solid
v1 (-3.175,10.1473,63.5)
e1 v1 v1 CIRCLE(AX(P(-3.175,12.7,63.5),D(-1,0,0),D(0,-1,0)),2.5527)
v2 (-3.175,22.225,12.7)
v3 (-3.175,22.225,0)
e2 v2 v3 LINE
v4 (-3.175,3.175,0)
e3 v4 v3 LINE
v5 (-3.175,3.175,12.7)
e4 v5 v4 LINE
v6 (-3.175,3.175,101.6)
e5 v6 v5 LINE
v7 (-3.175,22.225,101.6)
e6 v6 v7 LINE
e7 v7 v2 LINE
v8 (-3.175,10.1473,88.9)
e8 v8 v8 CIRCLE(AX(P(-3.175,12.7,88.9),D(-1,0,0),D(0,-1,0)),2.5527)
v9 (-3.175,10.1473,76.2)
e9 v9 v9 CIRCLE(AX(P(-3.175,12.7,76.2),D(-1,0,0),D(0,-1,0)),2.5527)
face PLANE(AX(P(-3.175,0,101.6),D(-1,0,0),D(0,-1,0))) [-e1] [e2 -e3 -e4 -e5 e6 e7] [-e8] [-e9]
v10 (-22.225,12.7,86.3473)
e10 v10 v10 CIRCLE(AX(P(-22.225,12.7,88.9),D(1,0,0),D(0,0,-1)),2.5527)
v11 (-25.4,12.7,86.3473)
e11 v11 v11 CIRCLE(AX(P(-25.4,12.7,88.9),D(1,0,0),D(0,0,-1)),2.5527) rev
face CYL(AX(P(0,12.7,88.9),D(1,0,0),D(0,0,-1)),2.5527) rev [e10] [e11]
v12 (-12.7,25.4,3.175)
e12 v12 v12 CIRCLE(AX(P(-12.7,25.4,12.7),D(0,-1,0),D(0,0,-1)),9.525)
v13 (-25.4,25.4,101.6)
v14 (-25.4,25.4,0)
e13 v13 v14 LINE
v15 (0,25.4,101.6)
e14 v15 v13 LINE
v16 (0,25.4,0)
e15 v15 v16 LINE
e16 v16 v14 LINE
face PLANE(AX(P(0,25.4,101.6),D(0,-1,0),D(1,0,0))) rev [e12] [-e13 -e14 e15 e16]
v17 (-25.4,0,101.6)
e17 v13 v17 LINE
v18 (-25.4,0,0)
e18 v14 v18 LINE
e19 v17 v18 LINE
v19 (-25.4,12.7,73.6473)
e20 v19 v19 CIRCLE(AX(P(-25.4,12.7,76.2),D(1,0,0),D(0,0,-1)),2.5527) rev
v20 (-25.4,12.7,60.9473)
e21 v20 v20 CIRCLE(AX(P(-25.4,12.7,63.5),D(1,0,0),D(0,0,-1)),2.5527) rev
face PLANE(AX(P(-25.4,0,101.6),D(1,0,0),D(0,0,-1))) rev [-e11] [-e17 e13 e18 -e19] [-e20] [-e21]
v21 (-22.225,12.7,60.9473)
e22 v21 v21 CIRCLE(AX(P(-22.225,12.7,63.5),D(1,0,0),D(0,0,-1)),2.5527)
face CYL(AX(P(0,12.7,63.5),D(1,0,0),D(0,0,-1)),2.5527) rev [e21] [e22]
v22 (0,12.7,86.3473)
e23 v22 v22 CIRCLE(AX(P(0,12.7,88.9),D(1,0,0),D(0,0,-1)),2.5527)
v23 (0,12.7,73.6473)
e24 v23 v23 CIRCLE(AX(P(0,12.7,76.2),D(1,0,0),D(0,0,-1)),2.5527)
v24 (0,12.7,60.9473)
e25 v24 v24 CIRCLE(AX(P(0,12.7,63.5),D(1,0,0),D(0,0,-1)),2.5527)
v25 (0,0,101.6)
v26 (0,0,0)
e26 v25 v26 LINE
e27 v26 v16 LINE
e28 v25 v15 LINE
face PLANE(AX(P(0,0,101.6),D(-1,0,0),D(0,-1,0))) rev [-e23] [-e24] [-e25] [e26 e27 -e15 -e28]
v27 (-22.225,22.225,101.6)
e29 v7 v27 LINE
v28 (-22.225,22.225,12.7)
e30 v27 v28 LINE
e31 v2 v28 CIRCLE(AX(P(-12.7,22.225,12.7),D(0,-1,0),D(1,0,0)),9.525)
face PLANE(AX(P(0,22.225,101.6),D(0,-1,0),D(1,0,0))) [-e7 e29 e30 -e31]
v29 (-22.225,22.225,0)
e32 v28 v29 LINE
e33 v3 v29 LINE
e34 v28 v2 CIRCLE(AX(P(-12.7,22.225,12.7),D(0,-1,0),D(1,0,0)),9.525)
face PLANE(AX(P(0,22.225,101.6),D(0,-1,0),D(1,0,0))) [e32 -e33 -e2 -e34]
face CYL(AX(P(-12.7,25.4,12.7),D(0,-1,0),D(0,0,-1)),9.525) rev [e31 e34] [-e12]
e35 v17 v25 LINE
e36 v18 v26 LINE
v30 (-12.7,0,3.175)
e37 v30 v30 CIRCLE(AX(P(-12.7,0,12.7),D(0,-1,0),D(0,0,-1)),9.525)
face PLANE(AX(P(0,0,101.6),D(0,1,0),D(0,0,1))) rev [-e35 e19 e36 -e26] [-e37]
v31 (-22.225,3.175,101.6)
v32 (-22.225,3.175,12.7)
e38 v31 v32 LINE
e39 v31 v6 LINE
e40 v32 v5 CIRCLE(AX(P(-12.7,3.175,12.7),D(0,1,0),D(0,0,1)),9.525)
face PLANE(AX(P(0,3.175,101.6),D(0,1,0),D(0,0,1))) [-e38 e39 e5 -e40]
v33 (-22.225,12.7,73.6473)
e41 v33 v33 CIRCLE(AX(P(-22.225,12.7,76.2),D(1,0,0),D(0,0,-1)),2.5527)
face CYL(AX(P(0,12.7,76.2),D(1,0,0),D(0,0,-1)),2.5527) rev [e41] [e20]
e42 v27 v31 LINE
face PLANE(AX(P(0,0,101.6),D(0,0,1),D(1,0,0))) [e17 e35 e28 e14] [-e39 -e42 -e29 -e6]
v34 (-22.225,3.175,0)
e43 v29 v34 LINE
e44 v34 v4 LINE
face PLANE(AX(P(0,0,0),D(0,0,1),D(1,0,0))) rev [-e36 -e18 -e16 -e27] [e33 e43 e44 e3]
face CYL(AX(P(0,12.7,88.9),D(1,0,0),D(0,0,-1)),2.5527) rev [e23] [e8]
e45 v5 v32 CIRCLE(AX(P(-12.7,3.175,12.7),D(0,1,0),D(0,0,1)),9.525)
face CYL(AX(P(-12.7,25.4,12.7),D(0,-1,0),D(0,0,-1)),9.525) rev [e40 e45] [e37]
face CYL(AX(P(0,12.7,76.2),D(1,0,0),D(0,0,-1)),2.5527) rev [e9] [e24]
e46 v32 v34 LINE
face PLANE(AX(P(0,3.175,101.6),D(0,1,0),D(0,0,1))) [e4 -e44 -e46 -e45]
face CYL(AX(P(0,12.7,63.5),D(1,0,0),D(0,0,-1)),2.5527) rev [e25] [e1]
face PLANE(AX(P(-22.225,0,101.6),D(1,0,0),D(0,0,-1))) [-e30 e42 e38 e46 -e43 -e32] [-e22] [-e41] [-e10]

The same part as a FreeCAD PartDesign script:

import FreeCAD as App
import Part
import Sketcher

V = App.Vector
Q = App.Units.Quantity


def add_polygon(sketch, points):
    """Adds a closed chain of lines whose ends are joined by coincident constraints."""
    first, n = sketch.GeometryCount, len(points)
    for a, b in zip(points, points[1:] + points[:1]):
        sketch.addGeometry(Part.LineSegment(App.Vector(*a, 0), App.Vector(*b, 0)), False)
    for i in range(n):
        sketch.addConstraint(Sketcher.Constraint("Coincident", first + i, 2, first + (i + 1) % n, 1))

doc = App.newDocument("Part")
body = doc.addObject("PartDesign::Body", "Body")

# Sketch on XY plane
sketch1 = doc.addObject("Sketcher::SketchObject", "Sketch")
body.addObject(sketch1)
sketch1.AttachmentSupport = (doc.XY_Plane, [""])
sketch1.MapMode = "FlatFace"
add_polygon(sketch1, [(-25, 25), (-25, 0), (0, 0), (0, 25)])  # lines 0-3
add_polygon(sketch1, [(-3, 3), (-22, 3), (-22, 22), (-3, 22)])  # lines 4-7
sketch1.addConstraint(Sketcher.Constraint("Vertical", 0))
sketch1.addConstraint(Sketcher.Constraint("Horizontal", 1))
sketch1.addConstraint(Sketcher.Constraint("Vertical", 2))
sketch1.addConstraint(Sketcher.Constraint("Horizontal", 3))
sketch1.addConstraint(Sketcher.Constraint("Horizontal", 4))
sketch1.addConstraint(Sketcher.Constraint("Vertical", 5))
sketch1.addConstraint(Sketcher.Constraint("Horizontal", 6))
sketch1.addConstraint(Sketcher.Constraint("Vertical", 7))
sketch1.addConstraint(Sketcher.Constraint("Coincident", 1, 2, -1, 1))
sketch1.addConstraint(Sketcher.Constraint("Equal", 3, 0))
sketch1.addConstraint(Sketcher.Constraint("Equal", 6, 5))
sketch1.addConstraint(Sketcher.Constraint("DistanceX", 1, 1, 1, 2, Q("1 in")))
sketch1.addConstraint(Sketcher.Constraint("DistanceX", 4, 2, 4, 1, Q("0.75 in")))
sketch1.addConstraint(Sketcher.Constraint("DistanceX", 4, 2, -1, 1, Q("0.875 in")))
sketch1.addConstraint(Sketcher.Constraint("DistanceY", -1, 1, 4, 2, Q("0.125 in")))
pad1 = doc.addObject("PartDesign::Pad", "Pad")
body.addObject(pad1)
pad1.Profile = sketch1
pad1.Length = Q("4 in")

# Sketch on XZ plane
sketch2 = doc.addObject("Sketcher::SketchObject", "Sketch001")
body.addObject(sketch2)
sketch2.AttachmentSupport = (doc.XZ_Plane, [""])
sketch2.MapMode = "FlatFace"
sketch2.addGeometry(Part.Circle(V(-13, 13, 0), V(0, 0, 1), 10), False)
sketch2.addConstraint(Sketcher.Constraint("Diameter", 0, Q("0.75 in")))
sketch2.addConstraint(Sketcher.Constraint("DistanceX", 0, 3, -1, 1, Q("0.5 in")))
sketch2.addConstraint(Sketcher.Constraint("DistanceY", -1, 1, 0, 3, Q("0.5 in")))
pocket1 = doc.addObject("PartDesign::Pocket", "Pocket")
body.addObject(pocket1)
pocket1.Profile = sketch2
pocket1.Type = "ThroughAll"

# Sketch on YZ plane
sketch3 = doc.addObject("Sketcher::SketchObject", "Sketch002")
body.addObject(sketch3)
sketch3.AttachmentSupport = (doc.YZ_Plane, [""])
sketch3.MapMode = "FlatFace"
sketch3.addGeometry(Part.Circle(V(12.7, 76.2, 0), V(0, 0, 1), 2.6), False)
sketch3.addGeometry(Part.Circle(V(12.7, 88.9, 0), V(0, 0, 1), 2.6), False)
sketch3.addGeometry(Part.Circle(V(12.7, 63.5, 0), V(0, 0, 1), 2.6), False)
sketch3.addConstraint(Sketcher.Constraint("Equal", 0, 1))
sketch3.addConstraint(Sketcher.Constraint("Equal", 1, 2))
sketch3.addConstraint(Sketcher.Constraint("Vertical", 0, 3, 1, 3))
sketch3.addConstraint(Sketcher.Constraint("Vertical", 1, 3, 2, 3))
sketch3.addConstraint(Sketcher.Constraint("Diameter", 0, Q("0.201 in")))
sketch3.addConstraint(Sketcher.Constraint("DistanceY", -1, 1, 0, 3, Q("3 in")))
sketch3.addConstraint(Sketcher.Constraint("DistanceY", 2, 3, 1, 3, Q("1 in")))
sketch3.addConstraint(Sketcher.Constraint("DistanceX", -1, 1, 0, 3, Q("0.5 in")))
sketch3.addConstraint(Sketcher.Constraint("DistanceY", -1, 1, 1, 3, Q("3.5 in")))
doc.recompute()
hole = doc.addObject("PartDesign::Hole", "Hole")
body.addObject(hole)
hole.Profile = sketch3
hole.ThreadType = "None"
hole.Diameter = Q("0.201 in")
hole.DepthType = "ThroughAll"

doc.recompute()
